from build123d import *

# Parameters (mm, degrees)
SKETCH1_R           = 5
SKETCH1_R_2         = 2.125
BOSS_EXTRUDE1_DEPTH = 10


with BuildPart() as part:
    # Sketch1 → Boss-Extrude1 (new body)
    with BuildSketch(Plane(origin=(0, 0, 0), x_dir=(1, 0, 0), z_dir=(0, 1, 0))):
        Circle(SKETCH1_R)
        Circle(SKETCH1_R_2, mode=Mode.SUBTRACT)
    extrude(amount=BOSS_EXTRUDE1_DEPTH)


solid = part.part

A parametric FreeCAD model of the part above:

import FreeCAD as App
import Part
import Sketcher

doc = App.newDocument("Part")
body = doc.addObject("PartDesign::Body", "Body")

sketch1 = body.newObject("Sketcher::SketchObject", "Sketch")
sketch1.AttachmentSupport = (doc.getObject("XZ_Plane"), [""])
sketch1.MapMode = "FlatFace"
sketch1.addGeometry([
    Part.Circle(App.Vector(0, 0, 0), App.Vector(0, 0, 1), 5),
    Part.Circle(App.Vector(0, 0, 0), App.Vector(0, 0, 1), 2.1),
], False)
sketch1.addConstraint([
    Sketcher.Constraint("Coincident", 0, 3, -1, 1),
    Sketcher.Constraint("Coincident", 1, 3, -1, 1),
    Sketcher.Constraint("Diameter", 0, 10.0),
    Sketcher.Constraint("Diameter", 1, 4.25),
])
pad1 = body.newObject("PartDesign::Pad", "Pad")
pad1.Profile = sketch1
pad1.Length = 10
pad1.Reversed = True

doc.recompute()
